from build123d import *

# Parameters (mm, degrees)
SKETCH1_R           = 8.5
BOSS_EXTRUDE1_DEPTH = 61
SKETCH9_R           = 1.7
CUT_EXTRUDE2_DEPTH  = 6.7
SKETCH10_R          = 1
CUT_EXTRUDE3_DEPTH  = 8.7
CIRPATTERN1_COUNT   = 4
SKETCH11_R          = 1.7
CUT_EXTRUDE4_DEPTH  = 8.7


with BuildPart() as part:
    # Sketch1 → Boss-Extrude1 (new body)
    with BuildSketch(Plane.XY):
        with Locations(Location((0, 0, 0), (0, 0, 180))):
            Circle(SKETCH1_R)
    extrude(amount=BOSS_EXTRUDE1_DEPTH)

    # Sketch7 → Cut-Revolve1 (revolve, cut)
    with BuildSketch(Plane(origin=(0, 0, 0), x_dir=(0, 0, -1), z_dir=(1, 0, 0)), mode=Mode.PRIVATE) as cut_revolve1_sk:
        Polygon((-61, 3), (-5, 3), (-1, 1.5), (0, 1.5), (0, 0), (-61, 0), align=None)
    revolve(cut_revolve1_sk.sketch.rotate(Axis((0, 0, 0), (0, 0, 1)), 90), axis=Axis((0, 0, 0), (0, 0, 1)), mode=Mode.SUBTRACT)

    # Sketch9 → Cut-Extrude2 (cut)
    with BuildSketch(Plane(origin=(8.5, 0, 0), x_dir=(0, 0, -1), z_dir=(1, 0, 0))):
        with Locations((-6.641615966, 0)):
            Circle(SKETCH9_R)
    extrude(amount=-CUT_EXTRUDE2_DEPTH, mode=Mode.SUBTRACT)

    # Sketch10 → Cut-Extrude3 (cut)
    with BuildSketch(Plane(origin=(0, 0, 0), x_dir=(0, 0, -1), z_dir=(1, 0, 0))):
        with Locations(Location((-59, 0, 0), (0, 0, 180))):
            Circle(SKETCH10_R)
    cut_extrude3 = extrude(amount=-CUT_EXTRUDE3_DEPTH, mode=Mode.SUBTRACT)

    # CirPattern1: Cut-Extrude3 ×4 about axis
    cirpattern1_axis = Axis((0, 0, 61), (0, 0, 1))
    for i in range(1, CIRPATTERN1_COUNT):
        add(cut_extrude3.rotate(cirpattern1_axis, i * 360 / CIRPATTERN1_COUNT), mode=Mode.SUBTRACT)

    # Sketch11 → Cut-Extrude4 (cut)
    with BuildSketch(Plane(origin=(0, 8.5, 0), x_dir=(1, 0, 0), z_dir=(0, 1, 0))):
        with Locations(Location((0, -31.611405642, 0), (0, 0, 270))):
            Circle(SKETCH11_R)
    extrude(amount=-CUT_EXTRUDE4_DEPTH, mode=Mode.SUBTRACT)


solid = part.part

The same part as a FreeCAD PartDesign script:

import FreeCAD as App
import Part
import Sketcher


def add_polygon(sketch, points):
    """Adds a closed chain of lines whose ends are joined by coincident constraints."""
    first, n = sketch.GeometryCount, len(points)
    for a, b in zip(points, points[1:] + points[:1]):
        sketch.addGeometry(Part.LineSegment(App.Vector(*a, 0), App.Vector(*b, 0)), False)
    for i in range(n):
        sketch.addConstraint(Sketcher.Constraint("Coincident", first + i, 2, first + (i + 1) % n, 1))

doc = App.newDocument("Part")
body = doc.addObject("PartDesign::Body", "Body")

# Sketch on XY plane
sketch1 = body.newObject("Sketcher::SketchObject", "Sketch")
sketch1.AttachmentSupport = (doc.getObject("XY_Plane"), [""])
sketch1.MapMode = "FlatFace"
sketch1.addGeometry(Part.Circle(App.Vector(0, 0, 0), App.Vector(0, 0, 1), 8), False)
sketch1.addConstraint(Sketcher.Constraint("Coincident", 0, 3, -1, 1))
sketch1.addConstraint(Sketcher.Constraint("Diameter", 0, 17.0))
pad1 = body.newObject("PartDesign::Pad", "Pad")
pad1.Profile = sketch1
pad1.Length = 61

# Sketch on YZ plane
sketch2 = body.newObject("Sketcher::SketchObject", "Sketch001")
sketch2.AttachmentSupport = (doc.getObject("YZ_Plane"), [""])
sketch2.MapMode = "FlatFace"
add_polygon(sketch2, [(3, 5), (3, 61), (0, 61), (0, 0), (1.5, 0), (1.5, 1)])  # lines 0-5
sketch2.addConstraint(Sketcher.Constraint("Vertical", 0))
sketch2.addConstraint(Sketcher.Constraint("Horizontal", 1))
sketch2.addConstraint(Sketcher.Constraint("Vertical", 2))
sketch2.addConstraint(Sketcher.Constraint("Horizontal", 3))
sketch2.addConstraint(Sketcher.Constraint("Vertical", 4))
sketch2.addConstraint(Sketcher.Constraint("Coincident", 2, 2, -1, 1))
sketch2.addConstraint(Sketcher.Constraint("DistanceX", 1, 2, 1, 1, 3.0))
sketch2.addConstraint(Sketcher.Constraint("DistanceY", 0, 1, 0, 2, 56.0))
sketch2.addConstraint(Sketcher.Constraint("DistanceY", 2, 2, 2, 1, 61.0))
sketch2.addConstraint(Sketcher.Constraint("DistanceY", 4, 1, 4, 2, 1.0))
sketch2.addConstraint(Sketcher.Constraint("DistanceX", 3, 1, 3, 2, 1.5))
groove = body.newObject("PartDesign::Groove", "Groove")
groove.Profile = sketch2
groove.ReferenceAxis = (sketch2, ["V_Axis"])
groove.Angle = 360

# Sketch on YZ plane
sketch3 = body.newObject("Sketcher::SketchObject", "Sketch002")
sketch3.AttachmentSupport = (doc.getObject("YZ_Plane"), [""])
sketch3.MapMode = "FlatFace"
sketch3.AttachmentOffset = App.Placement(App.Vector(0, 0, 8.5), App.Rotation())
sketch3.addGeometry(Part.Circle(App.Vector(0, 6.6, 0), App.Vector(0, 0, 1), 1.7), False)
sketch3.addConstraint(Sketcher.Constraint("PointOnObject", 0, 3, -2))
sketch3.addConstraint(Sketcher.Constraint("Diameter", 0, 3.4))
sketch3.addConstraint(Sketcher.Constraint("DistanceY", -1, 1, 0, 3, 6.641616))
pocket1 = body.newObject("PartDesign::Pocket", "Pocket")
pocket1.Profile = sketch3
pocket1.Length = 6.7

# Sketch on YZ plane
sketch4 = body.newObject("Sketcher::SketchObject", "Sketch003")
sketch4.AttachmentSupport = (doc.getObject("YZ_Plane"), [""])
sketch4.MapMode = "FlatFace"
sketch4.addGeometry(Part.Circle(App.Vector(0, 59, 0), App.Vector(0, 0, 1), 1), False)
sketch4.addConstraint(Sketcher.Constraint("PointOnObject", 0, 3, -2))
sketch4.addConstraint(Sketcher.Constraint("Diameter", 0, 2.0))
sketch4.addConstraint(Sketcher.Constraint("DistanceY", -1, 1, 0, 3, 59.0))
pocket2 = body.newObject("PartDesign::Pocket", "Pocket001")
pocket2.Profile = sketch4
pocket2.Length = 8.7
doc.recompute()

polarpattern = body.newObject("PartDesign::PolarPattern", "PolarPattern")
polarpattern.Originals = [pocket2]
polarpattern.Axis = (doc.getObject("Z_Axis"), [""])
polarpattern.Angle = 360
polarpattern.Occurrences = 4
body.Tip = polarpattern

# Sketch on XZ plane
sketch5 = body.newObject("Sketcher::SketchObject", "Sketch004")
sketch5.AttachmentSupport = (doc.getObject("XZ_Plane"), [""])
sketch5.MapMode = "FlatFace"
sketch5.AttachmentOffset = App.Placement(App.Vector(0, 0, -8.5), App.Rotation())
sketch5.addGeometry(Part.Circle(App.Vector(0, 31.6, 0), App.Vector(0, 0, 1), 1.7), False)
sketch5.addConstraint(Sketcher.Constraint("PointOnObject", 0, 3, -2))
sketch5.addConstraint(Sketcher.Constraint("Diameter", 0, 3.4))
sketch5.addConstraint(Sketcher.Constraint("DistanceY", -1, 1, 0, 3, 31.611406))
pocket3 = body.newObject("PartDesign::Pocket", "Pocket002")
pocket3.Profile = sketch5
pocket3.Length = 8.7
pocket3.Reversed = True

doc.recompute()
